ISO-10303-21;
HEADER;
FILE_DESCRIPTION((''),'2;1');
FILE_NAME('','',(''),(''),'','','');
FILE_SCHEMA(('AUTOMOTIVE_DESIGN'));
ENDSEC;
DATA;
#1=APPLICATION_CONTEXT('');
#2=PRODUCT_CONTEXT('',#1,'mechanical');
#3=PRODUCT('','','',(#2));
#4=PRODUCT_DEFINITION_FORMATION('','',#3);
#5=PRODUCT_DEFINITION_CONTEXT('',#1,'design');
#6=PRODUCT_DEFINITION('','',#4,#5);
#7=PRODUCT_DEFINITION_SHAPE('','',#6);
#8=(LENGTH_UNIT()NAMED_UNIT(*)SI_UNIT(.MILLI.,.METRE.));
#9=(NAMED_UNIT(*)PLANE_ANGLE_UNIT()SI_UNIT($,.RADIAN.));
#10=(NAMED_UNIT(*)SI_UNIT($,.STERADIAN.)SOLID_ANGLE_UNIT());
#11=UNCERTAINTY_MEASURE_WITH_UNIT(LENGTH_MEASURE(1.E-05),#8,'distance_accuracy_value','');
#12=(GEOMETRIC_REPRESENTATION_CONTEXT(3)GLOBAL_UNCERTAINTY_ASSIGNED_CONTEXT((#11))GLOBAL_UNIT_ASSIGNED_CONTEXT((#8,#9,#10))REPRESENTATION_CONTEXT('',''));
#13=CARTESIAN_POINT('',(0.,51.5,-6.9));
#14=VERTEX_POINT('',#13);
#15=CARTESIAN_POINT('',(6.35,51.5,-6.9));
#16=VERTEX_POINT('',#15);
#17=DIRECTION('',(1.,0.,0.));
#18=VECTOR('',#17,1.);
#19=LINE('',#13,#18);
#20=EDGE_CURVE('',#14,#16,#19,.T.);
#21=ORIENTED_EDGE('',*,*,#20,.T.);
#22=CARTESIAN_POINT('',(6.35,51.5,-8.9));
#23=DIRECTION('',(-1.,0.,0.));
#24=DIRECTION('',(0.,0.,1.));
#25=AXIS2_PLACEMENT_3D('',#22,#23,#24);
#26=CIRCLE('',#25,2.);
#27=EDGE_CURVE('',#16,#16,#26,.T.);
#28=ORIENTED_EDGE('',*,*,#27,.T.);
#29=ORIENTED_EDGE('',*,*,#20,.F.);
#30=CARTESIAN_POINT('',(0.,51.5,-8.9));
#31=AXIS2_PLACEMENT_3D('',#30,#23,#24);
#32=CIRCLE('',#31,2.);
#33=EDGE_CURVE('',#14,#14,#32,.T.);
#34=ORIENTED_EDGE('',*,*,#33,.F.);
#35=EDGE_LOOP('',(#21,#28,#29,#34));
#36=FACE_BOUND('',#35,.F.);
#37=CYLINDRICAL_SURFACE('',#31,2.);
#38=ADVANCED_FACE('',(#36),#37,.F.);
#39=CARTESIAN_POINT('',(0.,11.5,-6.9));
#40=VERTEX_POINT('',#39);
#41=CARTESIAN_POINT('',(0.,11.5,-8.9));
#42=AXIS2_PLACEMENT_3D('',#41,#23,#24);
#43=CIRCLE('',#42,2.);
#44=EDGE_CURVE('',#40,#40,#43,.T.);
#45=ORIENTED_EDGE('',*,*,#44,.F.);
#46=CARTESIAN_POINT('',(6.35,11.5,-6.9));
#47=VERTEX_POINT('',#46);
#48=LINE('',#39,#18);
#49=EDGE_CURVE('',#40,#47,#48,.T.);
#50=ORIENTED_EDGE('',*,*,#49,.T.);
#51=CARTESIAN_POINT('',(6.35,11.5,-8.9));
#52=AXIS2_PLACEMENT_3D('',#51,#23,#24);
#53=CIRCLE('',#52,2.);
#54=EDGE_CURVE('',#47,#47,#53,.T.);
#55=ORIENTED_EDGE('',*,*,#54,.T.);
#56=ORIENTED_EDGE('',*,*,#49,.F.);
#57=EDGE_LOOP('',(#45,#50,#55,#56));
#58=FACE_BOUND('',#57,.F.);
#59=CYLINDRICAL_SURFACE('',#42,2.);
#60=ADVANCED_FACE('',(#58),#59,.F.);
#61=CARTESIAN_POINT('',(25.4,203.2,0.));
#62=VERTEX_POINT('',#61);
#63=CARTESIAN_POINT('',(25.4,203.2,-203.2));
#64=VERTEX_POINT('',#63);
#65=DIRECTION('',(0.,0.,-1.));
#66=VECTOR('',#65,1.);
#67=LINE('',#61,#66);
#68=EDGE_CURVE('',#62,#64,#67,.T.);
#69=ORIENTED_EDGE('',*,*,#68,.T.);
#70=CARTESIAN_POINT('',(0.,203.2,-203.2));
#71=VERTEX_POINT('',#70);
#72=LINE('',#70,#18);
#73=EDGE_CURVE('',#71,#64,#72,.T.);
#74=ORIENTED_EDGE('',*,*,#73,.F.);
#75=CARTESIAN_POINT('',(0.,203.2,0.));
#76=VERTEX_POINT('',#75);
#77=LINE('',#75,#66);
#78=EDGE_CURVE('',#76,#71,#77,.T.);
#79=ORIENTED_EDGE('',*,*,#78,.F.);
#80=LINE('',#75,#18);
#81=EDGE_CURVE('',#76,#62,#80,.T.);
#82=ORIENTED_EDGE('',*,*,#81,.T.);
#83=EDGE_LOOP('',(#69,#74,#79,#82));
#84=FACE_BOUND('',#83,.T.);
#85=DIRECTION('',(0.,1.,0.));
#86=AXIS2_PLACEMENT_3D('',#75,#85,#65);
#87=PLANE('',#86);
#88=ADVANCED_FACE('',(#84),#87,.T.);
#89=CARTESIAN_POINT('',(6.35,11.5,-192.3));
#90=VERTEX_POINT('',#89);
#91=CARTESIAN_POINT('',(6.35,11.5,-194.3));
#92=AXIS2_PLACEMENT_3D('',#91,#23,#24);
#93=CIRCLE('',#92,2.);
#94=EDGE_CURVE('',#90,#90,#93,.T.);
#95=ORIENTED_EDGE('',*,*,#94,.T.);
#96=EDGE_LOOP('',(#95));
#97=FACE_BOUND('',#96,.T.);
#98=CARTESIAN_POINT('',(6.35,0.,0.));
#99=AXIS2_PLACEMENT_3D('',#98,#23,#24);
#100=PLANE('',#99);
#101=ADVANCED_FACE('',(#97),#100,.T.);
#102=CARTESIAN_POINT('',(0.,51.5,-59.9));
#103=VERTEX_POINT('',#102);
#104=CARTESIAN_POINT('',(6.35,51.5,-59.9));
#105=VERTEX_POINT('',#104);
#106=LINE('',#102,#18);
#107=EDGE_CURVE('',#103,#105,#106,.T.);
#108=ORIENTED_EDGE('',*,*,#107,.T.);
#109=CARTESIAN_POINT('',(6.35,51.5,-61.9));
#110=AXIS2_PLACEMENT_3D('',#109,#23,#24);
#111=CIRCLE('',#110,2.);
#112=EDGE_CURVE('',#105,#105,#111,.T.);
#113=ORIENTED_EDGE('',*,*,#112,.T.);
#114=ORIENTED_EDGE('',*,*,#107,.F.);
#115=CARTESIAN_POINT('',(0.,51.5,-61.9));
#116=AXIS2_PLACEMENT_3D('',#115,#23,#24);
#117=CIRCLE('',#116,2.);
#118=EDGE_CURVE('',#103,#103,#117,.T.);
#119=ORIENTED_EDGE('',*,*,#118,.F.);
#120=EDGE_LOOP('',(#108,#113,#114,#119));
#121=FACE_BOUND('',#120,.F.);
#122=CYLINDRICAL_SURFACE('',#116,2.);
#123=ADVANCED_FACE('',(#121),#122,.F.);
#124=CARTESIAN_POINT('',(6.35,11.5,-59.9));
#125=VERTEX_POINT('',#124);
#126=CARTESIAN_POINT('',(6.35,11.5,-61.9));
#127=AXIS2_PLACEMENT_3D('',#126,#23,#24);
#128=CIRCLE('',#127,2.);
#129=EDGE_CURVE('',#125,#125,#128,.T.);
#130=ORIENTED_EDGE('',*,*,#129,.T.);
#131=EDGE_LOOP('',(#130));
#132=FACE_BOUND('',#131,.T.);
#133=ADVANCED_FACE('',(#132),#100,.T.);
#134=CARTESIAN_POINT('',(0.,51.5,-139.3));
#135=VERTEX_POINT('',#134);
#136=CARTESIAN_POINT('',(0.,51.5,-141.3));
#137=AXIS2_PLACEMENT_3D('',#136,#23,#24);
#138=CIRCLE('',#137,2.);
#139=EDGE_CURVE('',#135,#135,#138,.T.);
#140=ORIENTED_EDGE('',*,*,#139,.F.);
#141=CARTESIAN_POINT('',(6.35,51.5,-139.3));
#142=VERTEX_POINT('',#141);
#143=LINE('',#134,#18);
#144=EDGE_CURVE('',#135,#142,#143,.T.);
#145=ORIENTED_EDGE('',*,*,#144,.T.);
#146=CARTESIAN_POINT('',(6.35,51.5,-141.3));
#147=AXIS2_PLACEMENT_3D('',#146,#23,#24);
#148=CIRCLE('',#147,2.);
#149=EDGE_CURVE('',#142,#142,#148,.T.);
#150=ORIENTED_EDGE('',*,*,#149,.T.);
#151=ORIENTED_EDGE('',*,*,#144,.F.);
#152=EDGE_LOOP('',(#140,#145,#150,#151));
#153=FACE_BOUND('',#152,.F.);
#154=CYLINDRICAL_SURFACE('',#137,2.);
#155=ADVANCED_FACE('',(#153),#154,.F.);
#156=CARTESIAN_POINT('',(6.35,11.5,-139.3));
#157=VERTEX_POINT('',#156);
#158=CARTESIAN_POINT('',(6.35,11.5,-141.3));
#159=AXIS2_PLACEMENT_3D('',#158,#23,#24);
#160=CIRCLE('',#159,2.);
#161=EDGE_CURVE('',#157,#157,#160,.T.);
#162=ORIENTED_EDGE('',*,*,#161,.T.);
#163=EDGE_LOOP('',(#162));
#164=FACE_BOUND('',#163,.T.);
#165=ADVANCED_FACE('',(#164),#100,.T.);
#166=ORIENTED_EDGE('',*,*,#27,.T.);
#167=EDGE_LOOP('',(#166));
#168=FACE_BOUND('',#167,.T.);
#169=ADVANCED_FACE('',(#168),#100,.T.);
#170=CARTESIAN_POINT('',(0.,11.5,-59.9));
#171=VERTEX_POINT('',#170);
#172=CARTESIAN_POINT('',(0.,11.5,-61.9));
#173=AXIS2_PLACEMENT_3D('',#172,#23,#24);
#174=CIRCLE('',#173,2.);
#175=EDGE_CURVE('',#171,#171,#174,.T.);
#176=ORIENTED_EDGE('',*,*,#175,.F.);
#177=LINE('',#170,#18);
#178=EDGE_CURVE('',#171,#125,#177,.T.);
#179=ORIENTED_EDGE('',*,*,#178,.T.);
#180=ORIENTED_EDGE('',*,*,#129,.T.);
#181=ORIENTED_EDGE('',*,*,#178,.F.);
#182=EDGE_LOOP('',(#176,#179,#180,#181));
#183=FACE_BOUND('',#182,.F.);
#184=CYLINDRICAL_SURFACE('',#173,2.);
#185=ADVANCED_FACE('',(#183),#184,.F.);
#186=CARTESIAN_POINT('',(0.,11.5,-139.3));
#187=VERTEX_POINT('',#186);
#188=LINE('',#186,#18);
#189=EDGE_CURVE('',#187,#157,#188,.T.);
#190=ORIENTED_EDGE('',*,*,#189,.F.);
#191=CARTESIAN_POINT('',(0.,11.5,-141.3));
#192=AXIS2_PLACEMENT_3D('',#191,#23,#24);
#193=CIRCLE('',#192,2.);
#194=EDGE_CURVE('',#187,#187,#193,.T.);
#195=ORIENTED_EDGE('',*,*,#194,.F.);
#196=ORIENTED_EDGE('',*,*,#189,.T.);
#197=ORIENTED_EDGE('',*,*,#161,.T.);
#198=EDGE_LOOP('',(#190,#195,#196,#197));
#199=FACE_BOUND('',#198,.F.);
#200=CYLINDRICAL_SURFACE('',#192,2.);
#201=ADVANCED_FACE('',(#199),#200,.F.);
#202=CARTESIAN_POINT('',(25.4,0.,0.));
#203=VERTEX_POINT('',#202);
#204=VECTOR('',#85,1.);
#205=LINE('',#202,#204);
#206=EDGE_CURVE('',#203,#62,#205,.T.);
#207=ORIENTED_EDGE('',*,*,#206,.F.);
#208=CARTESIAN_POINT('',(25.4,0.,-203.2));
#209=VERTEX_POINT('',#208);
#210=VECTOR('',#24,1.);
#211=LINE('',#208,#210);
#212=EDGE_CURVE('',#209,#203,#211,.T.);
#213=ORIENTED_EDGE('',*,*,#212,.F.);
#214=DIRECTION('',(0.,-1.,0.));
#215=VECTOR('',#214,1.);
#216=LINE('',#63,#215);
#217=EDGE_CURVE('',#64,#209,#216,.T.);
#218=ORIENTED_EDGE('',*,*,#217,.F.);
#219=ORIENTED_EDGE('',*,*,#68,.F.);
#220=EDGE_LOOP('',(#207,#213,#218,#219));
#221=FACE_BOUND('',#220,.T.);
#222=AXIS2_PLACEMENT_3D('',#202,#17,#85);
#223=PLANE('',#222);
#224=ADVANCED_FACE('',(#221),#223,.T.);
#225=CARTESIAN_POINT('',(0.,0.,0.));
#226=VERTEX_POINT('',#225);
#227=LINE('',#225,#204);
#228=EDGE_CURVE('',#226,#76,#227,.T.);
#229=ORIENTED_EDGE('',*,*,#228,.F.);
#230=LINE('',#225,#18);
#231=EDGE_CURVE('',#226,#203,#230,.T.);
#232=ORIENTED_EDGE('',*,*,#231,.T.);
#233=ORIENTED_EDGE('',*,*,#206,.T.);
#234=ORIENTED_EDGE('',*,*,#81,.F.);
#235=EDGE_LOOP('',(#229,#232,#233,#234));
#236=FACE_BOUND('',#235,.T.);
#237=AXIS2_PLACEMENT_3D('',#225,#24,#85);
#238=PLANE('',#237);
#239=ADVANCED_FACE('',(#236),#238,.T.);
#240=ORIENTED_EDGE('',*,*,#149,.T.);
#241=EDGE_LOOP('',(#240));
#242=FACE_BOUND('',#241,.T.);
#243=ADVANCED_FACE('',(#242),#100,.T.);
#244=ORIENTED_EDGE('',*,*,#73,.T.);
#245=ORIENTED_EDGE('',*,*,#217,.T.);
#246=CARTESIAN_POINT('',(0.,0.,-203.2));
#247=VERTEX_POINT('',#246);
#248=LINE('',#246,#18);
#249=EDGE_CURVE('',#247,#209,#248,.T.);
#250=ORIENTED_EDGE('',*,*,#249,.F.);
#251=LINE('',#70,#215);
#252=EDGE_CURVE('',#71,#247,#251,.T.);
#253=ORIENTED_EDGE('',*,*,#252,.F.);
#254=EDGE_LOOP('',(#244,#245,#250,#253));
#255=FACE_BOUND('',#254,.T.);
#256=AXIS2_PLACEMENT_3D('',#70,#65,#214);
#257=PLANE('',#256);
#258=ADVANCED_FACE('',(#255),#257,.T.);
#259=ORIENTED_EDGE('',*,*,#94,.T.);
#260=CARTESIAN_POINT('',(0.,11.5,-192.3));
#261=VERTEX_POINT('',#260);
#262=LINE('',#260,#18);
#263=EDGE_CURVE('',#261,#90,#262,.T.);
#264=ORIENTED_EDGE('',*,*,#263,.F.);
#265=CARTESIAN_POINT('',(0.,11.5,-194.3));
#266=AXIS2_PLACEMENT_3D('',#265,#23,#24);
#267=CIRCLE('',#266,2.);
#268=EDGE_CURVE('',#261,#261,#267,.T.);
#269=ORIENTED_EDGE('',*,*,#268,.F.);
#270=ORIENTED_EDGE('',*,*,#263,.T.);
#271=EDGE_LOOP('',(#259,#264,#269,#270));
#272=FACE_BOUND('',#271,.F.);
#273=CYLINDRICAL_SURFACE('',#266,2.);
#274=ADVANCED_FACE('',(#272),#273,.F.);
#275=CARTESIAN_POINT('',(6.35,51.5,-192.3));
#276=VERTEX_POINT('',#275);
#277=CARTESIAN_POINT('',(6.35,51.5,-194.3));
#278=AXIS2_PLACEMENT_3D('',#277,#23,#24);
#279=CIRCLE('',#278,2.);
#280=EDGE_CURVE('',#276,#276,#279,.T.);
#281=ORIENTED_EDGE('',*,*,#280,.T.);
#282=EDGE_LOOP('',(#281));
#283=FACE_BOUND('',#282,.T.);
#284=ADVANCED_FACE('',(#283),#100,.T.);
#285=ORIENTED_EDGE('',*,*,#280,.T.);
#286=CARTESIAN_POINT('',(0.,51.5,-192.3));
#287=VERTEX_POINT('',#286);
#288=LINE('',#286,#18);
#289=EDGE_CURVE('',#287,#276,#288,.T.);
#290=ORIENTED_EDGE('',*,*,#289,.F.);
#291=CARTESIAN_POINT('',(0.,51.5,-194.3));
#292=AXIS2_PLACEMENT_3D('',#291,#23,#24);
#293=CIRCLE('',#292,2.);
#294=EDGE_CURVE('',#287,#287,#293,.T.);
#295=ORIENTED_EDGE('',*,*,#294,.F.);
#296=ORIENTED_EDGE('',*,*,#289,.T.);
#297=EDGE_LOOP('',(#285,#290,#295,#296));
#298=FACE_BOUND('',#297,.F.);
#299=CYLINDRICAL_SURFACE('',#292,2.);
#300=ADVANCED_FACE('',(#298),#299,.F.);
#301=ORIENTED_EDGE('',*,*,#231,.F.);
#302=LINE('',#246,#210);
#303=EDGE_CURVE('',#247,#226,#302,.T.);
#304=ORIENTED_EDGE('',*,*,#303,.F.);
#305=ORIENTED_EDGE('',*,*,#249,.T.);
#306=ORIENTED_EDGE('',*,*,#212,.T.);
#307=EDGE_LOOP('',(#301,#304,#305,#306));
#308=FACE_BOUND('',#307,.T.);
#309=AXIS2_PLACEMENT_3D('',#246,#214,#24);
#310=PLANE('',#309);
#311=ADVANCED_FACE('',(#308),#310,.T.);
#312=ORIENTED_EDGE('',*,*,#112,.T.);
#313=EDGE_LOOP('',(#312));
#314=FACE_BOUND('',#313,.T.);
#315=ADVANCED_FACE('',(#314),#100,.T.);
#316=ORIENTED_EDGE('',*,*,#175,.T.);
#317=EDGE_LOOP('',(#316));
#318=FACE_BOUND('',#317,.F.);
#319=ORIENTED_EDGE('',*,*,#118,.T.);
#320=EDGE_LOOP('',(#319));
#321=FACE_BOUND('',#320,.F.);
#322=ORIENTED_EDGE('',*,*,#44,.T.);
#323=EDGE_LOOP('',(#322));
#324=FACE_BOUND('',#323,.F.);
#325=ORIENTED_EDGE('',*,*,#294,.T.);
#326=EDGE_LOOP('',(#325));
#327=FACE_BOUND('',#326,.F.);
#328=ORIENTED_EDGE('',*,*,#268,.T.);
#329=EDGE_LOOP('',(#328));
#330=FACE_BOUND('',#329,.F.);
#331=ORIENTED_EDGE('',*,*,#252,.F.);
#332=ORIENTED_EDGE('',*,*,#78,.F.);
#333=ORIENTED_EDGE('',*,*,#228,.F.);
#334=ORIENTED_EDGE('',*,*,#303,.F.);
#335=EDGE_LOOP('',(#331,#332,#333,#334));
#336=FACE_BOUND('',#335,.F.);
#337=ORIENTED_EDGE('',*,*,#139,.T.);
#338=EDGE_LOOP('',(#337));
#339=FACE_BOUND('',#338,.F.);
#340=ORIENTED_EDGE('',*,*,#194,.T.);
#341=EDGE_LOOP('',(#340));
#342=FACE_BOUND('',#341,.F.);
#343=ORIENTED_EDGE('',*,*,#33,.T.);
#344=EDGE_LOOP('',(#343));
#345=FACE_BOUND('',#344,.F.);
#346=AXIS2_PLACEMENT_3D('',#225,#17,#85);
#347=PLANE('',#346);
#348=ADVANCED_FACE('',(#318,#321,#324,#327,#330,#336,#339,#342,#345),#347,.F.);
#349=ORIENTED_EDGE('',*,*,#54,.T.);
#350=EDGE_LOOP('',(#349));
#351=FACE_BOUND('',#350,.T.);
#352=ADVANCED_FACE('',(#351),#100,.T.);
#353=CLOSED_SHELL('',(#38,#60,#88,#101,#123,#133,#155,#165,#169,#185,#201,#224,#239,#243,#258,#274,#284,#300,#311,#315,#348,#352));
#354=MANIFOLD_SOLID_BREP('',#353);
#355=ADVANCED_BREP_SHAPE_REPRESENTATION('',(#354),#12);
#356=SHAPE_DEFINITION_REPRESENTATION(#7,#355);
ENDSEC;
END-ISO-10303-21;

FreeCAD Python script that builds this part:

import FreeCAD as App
import Part
import Sketcher

V = App.Vector
Q = App.Units.Quantity


def add_polygon(sketch, points):
    """Adds a closed chain of lines whose ends are joined by coincident constraints."""
    first, n = sketch.GeometryCount, len(points)
    for a, b in zip(points, points[1:] + points[:1]):
        sketch.addGeometry(Part.LineSegment(App.Vector(*a, 0), App.Vector(*b, 0)), False)
    for i in range(n):
        sketch.addConstraint(Sketcher.Constraint("Coincident", first + i, 2, first + (i + 1) % n, 1))

doc = App.newDocument("Part")
body = doc.addObject("PartDesign::Body", "Body")

# Sketch on YZ plane
sketch1 = body.newObject("Sketcher::SketchObject", "Sketch")
sketch1.AttachmentSupport = (doc.getObject("YZ_Plane"), [""])
sketch1.MapMode = "FlatFace"
add_polygon(sketch1, [(203, 0), (0, 0), (0, -203), (203, -203)])  # lines 0-3
sketch1.addConstraint([
    Sketcher.Constraint("Horizontal", 0),
    Sketcher.Constraint("Vertical", 1),
    Sketcher.Constraint("Horizontal", 2),
    Sketcher.Constraint("Vertical", 3),
    Sketcher.Constraint("Coincident", 0, 2, -1, 1),
    Sketcher.Constraint("Equal", 2, 1),
    Sketcher.Constraint("DistanceX", 0, 2, 0, 1, Q("8 in")),
])
pad1 = body.newObject("PartDesign::Pad", "Pad")
pad1.Profile = sketch1
pad1.Length = Q("1 in")

# Sketch on YZ plane
sketch2 = body.newObject("Sketcher::SketchObject", "Sketch001")
sketch2.AttachmentSupport = (doc.getObject("YZ_Plane"), [""])
sketch2.MapMode = "FlatFace"
sketch2.addGeometry([
    Part.Circle(V(11.5, -141.3, 0), V(0, 0, 1), 2),  # 0
    Part.Circle(V(51.5, -141.3, 0), V(0, 0, 1), 2),  # 1
    Part.Circle(V(11.5, -194.3, 0), V(0, 0, 1), 2),  # 2
    Part.Circle(V(51.5, -194.3, 0), V(0, 0, 1), 2),  # 3
    Part.Circle(V(11.5, -8.9, 0), V(0, 0, 1), 2),  # 4
    Part.Circle(V(51.5, -8.9, 0), V(0, 0, 1), 2),  # 5
    Part.Circle(V(11.5, -61.9, 0), V(0, 0, 1), 2),  # 6
    Part.Circle(V(51.5, -61.9, 0), V(0, 0, 1), 2),  # 7
], False)
sketch2.addConstraint([
    Sketcher.Constraint("Equal", 0, 1),
    Sketcher.Constraint("Equal", 1, 2),
    Sketcher.Constraint("Equal", 2, 3),
    Sketcher.Constraint("Equal", 3, 4),
    Sketcher.Constraint("Equal", 4, 5),
    Sketcher.Constraint("Equal", 5, 6),
    Sketcher.Constraint("Equal", 6, 7),
    Sketcher.Constraint("Horizontal", 0, 3, 1, 3),
    Sketcher.Constraint("Horizontal", 2, 3, 3, 3),
    Sketcher.Constraint("Horizontal", 4, 3, 5, 3),
    Sketcher.Constraint("Horizontal", 6, 3, 7, 3),
    Sketcher.Constraint("Vertical", 0, 3, 2, 3),
    Sketcher.Constraint("Vertical", 1, 3, 3, 3),
    Sketcher.Constraint("Vertical", 2, 3, 4, 3),
    Sketcher.Constraint("Vertical", 3, 3, 5, 3),
    Sketcher.Constraint("Vertical", 4, 3, 6, 3),
    Sketcher.Constraint("Vertical", 5, 3, 7, 3),
    Sketcher.Constraint("Diameter", 0, Q("4 mm")),
    Sketcher.Constraint("DistanceY", 4, 3, -1, 1, Q("0.3504 in")),
    Sketcher.Constraint("DistanceX", 0, 3, 1, 3, Q("1.5748 in")),
    Sketcher.Constraint("DistanceY", 2, 3, 0, 3, Q("53 mm")),
    Sketcher.Constraint("DistanceY", 6, 3, 4, 3, Q("53 mm")),
    Sketcher.Constraint("DistanceY", 0, 3, -1, 1, Q("5.563 in")),
    Sketcher.Constraint("DistanceX", -1, 1, 0, 3, Q("11.5 mm")),
])
pocket1 = body.newObject("PartDesign::Pocket", "Pocket")
pocket1.Profile = sketch2
pocket1.Length = Q("0.25 in")
pocket1.Reversed = True

doc.recompute()
